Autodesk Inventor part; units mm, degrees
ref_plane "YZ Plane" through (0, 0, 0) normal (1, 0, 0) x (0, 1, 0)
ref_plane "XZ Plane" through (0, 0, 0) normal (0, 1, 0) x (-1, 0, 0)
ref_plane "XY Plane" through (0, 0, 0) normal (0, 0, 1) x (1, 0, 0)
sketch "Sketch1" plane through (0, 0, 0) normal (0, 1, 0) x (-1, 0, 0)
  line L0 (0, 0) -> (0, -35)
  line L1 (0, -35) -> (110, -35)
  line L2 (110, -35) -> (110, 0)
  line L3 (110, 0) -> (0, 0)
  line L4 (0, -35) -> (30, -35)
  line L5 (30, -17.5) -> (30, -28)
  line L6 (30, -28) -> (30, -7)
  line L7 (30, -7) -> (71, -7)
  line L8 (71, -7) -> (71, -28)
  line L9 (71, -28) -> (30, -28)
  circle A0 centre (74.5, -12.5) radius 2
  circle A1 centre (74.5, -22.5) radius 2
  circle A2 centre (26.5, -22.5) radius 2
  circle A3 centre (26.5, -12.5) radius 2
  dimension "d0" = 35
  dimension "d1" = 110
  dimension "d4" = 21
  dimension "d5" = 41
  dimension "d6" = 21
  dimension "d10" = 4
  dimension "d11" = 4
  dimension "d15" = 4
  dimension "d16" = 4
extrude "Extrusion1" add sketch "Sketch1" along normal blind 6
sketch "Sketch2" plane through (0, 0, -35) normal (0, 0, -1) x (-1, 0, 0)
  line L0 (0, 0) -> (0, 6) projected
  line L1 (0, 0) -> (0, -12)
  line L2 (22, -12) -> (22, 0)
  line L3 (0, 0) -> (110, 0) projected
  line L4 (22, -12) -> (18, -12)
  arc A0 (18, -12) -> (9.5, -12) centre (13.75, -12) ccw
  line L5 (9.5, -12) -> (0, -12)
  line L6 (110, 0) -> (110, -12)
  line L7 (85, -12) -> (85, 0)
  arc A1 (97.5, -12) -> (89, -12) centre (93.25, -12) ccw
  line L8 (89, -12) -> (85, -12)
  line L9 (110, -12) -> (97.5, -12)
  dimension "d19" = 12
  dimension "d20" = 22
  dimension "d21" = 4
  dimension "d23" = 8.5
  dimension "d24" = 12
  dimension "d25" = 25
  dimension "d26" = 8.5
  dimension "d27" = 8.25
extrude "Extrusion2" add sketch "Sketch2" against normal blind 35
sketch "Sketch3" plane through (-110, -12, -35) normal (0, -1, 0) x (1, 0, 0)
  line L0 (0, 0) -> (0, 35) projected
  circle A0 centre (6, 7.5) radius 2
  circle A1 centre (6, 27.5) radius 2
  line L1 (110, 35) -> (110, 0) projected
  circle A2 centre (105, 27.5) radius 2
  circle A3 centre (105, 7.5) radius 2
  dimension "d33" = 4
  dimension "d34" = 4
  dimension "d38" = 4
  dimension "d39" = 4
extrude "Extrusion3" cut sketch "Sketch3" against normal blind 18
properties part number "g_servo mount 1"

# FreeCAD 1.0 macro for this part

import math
import FreeCAD as App
import Part
import Sketcher
Q = App.Units.Quantity


def add_polygon(sketch, points):
    """Adds a closed chain of lines whose ends are joined by coincident constraints."""
    first, n = sketch.GeometryCount, len(points)
    for a, b in zip(points, points[1:] + points[:1]):
        sketch.addGeometry(Part.LineSegment(App.Vector(*a, 0), App.Vector(*b, 0)), False)
    for i in range(n):
        sketch.addConstraint(Sketcher.Constraint("Coincident", first + i, 2, first + (i + 1) % n, 1))

doc = App.newDocument("Part")
body = doc.addObject("PartDesign::Body", "Body")

# Sketch on XZ plane
sketch1 = body.newObject("Sketcher::SketchObject", "Sketch")
sketch1.AttachmentSupport = (doc.getObject("XZ_Plane"), [""])
sketch1.MapMode = "FlatFace"
add_polygon(sketch1, [(-110, 0), (0, 0), (0, -35), (-110, -35)])  # lines 0-3
sketch1.addGeometry(Part.Circle(App.Vector(-26.5, -22.5, 0), App.Vector(0, 0, 1), 2), False)  # 4
sketch1.addGeometry(Part.Circle(App.Vector(-74.5, -22.5, 0), App.Vector(0, 0, 1), 2), False)  # 5
sketch1.addGeometry(Part.Circle(App.Vector(-26.5, -12.5, 0), App.Vector(0, 0, 1), 2), False)  # 6
add_polygon(sketch1, [(-30, -28), (-30, -7), (-71, -7), (-71, -28)])  # lines 7-10
sketch1.addGeometry(Part.Circle(App.Vector(-74.5, -12.5, 0), App.Vector(0, 0, 1), 2), False)  # 11
sketch1.addConstraint([
    Sketcher.Constraint("Horizontal", 0),
    Sketcher.Constraint("Vertical", 1),
    Sketcher.Constraint("Horizontal", 2),
    Sketcher.Constraint("Vertical", 3),
    Sketcher.Constraint("Vertical", 7),
    Sketcher.Constraint("Horizontal", 8),
    Sketcher.Constraint("Vertical", 9),
    Sketcher.Constraint("Horizontal", 10),
    Sketcher.Constraint("Coincident", 0, 2, -1, 1),
    Sketcher.Constraint("Equal", 4, 5),
    Sketcher.Constraint("Equal", 5, 6),
    Sketcher.Constraint("Equal", 6, 11),
    Sketcher.Constraint("Horizontal", 4, 3, 5, 3),
    Sketcher.Constraint("Horizontal", 6, 3, 11, 3),
    Sketcher.Constraint("Vertical", 4, 3, 6, 3),
    Sketcher.Constraint("Vertical", 5, 3, 11, 3),
    Sketcher.Constraint("Diameter", 4, Q("4 mm")),
    Sketcher.Constraint("DistanceX", 0, 1, 0, 2, Q("110 mm")),
    Sketcher.Constraint("DistanceX", 8, 2, 8, 1, Q("41 mm")),
    Sketcher.Constraint("DistanceY", 1, 2, 1, 1, Q("35 mm")),
    Sketcher.Constraint("DistanceY", 7, 1, 7, 2, Q("21 mm")),
    Sketcher.Constraint("DistanceX", 7, 2, -1, 1, Q("30 mm")),
    Sketcher.Constraint("DistanceY", 7, 2, -1, 1, Q("7 mm")),
    Sketcher.Constraint("DistanceX", 5, 3, 4, 3, Q("48 mm")),
    Sketcher.Constraint("DistanceY", 4, 3, 6, 3, Q("10 mm")),
    Sketcher.Constraint("DistanceX", 4, 3, -1, 1, Q("26.5 mm")),
    Sketcher.Constraint("DistanceY", 4, 3, -1, 1, Q("22.5 mm")),
])
pad1 = body.newObject("PartDesign::Pad", "Pad")
pad1.Profile = sketch1
pad1.Length = 6
pad1.Reversed = True

# Sketch on XY plane
sketch2 = body.newObject("Sketcher::SketchObject", "Sketch001")
sketch2.AttachmentSupport = (doc.getObject("XY_Plane"), [""])
sketch2.MapMode = "FlatFace"
sketch2.AttachmentOffset = App.Placement(App.Vector(0, 0, -35), App.Rotation())
sketch2.addGeometry([
    Part.LineSegment(App.Vector(-22, 0, 0), App.Vector(0, 0, 0)),  # 0
    Part.LineSegment(App.Vector(0, 0, 0), App.Vector(0, -12, 0)),  # 1
    Part.LineSegment(App.Vector(0, -12, 0), App.Vector(-9.5, -12, 0)),  # 2
    Part.ArcOfCircle(Part.Circle(App.Vector(-13.75, -12, 0), App.Vector(0, 0, 1), 4.25), math.radians(0), math.radians(180)),  # 3
    Part.LineSegment(App.Vector(-18, -12, 0), App.Vector(-22, -12, 0)),  # 4
    Part.LineSegment(App.Vector(-22, -12, 0), App.Vector(-22, 0, 0)),  # 5
    Part.LineSegment(App.Vector(-110, 0, 0), App.Vector(-85, 0, 0)),  # 6
    Part.LineSegment(App.Vector(-85, 0, 0), App.Vector(-85, -12, 0)),  # 7
    Part.LineSegment(App.Vector(-85, -12, 0), App.Vector(-89, -12, 0)),  # 8
    Part.ArcOfCircle(Part.Circle(App.Vector(-93.25, -12, 0), App.Vector(0, 0, 1), 4.25), math.radians(0), math.radians(180)),  # 9
    Part.LineSegment(App.Vector(-97.5, -12, 0), App.Vector(-110, -12, 0)),  # 10
    Part.LineSegment(App.Vector(-110, -12, 0), App.Vector(-110, 0, 0)),  # 11
], False)
sketch2.addConstraint([
    Sketcher.Constraint("Coincident", 0, 2, 1, 1),
    Sketcher.Constraint("Coincident", 1, 2, 2, 1),
    Sketcher.Constraint("Coincident", 2, 2, 3, 1),
    Sketcher.Constraint("Coincident", 3, 2, 4, 1),
    Sketcher.Constraint("Coincident", 4, 2, 5, 1),
    Sketcher.Constraint("Coincident", 5, 2, 0, 1),
    Sketcher.Constraint("Coincident", 6, 2, 7, 1),
    Sketcher.Constraint("Coincident", 7, 2, 8, 1),
    Sketcher.Constraint("Coincident", 8, 2, 9, 1),
    Sketcher.Constraint("Coincident", 9, 2, 10, 1),
    Sketcher.Constraint("Coincident", 10, 2, 11, 1),
    Sketcher.Constraint("Coincident", 11, 2, 6, 1),
    Sketcher.Constraint("Horizontal", 0),
    Sketcher.Constraint("Vertical", 1),
    Sketcher.Constraint("Horizontal", 2),
    Sketcher.Constraint("Horizontal", 4),
    Sketcher.Constraint("Vertical", 5),
    Sketcher.Constraint("Horizontal", 6),
    Sketcher.Constraint("Vertical", 7),
    Sketcher.Constraint("Horizontal", 8),
    Sketcher.Constraint("Horizontal", 10),
    Sketcher.Constraint("Vertical", 11),
    Sketcher.Constraint("Coincident", 0, 2, -1, 1),
    Sketcher.Constraint("Equal", 3, 9),
    Sketcher.Constraint("PointOnObject", 6, 2, -1),
    Sketcher.Constraint("Horizontal", 3, 3, 9, 3),
    Sketcher.Constraint("Horizontal", 9, 3, 1, 2),
    Sketcher.Constraint("Horizontal", 2, 2, 3, 2),
    Sketcher.Constraint("Horizontal", 4, 2, 7, 2),
    Sketcher.Constraint("Horizontal", 8, 2, 9, 2),
    Sketcher.Constraint("Equal", 4, 8),
    Sketcher.Constraint("DistanceX", 0, 1, 0, 2, Q("22 mm")),
    Sketcher.Constraint("DistanceX", 4, 2, 4, 1, Q("4 mm")),
    Sketcher.Constraint("DistanceX", 6, 1, 6, 2, Q("25 mm")),
    Sketcher.Constraint("DistanceY", 1, 2, 1, 1, Q("12 mm")),
    Sketcher.Constraint("Radius", 3, Q("4.25 mm")),
    Sketcher.Constraint("DistanceX", 6, 2, -1, 1, Q("85 mm")),
])
pad2 = body.newObject("PartDesign::Pad", "Pad001")
pad2.Profile = sketch2
pad2.Length = 35

# Sketch on XZ plane
sketch3 = body.newObject("Sketcher::SketchObject", "Sketch002")
sketch3.AttachmentSupport = (doc.getObject("XZ_Plane"), [""])
sketch3.MapMode = "FlatFace"
sketch3.AttachmentOffset = App.Placement(App.Vector(0, 0, 12), App.Rotation())
sketch3.addGeometry([
    Part.Circle(App.Vector(-104, -27.5, 0), App.Vector(0, 0, 1), 2),
    Part.Circle(App.Vector(-104, -7.5, 0), App.Vector(0, 0, 1), 2),
    Part.Circle(App.Vector(-5, -7.5, 0), App.Vector(0, 0, 1), 2),
    Part.Circle(App.Vector(-5, -27.5, 0), App.Vector(0, 0, 1), 2),
], False)
sketch3.addConstraint([
    Sketcher.Constraint("Equal", 0, 1),
    Sketcher.Constraint("Equal", 1, 2),
    Sketcher.Constraint("Equal", 2, 3),
    Sketcher.Constraint("Horizontal", 1, 3, 2, 3),
    Sketcher.Constraint("Horizontal", 0, 3, 3, 3),
    Sketcher.Constraint("Vertical", 0, 3, 1, 3),
    Sketcher.Constraint("Vertical", 2, 3, 3, 3),
    Sketcher.Constraint("Diameter", 0, Q("4 mm")),
    Sketcher.Constraint("DistanceX", 0, 3, -1, 1, Q("104 mm")),
    Sketcher.Constraint("DistanceX", 2, 3, -1, 1, Q("5 mm")),
    Sketcher.Constraint("DistanceY", 0, 3, 1, 3, Q("20 mm")),
    Sketcher.Constraint("DistanceY", 0, 3, -1, 1, Q("27.5 mm")),
])
pocket1 = body.newObject("PartDesign::Pocket", "Pocket")
pocket1.Profile = sketch3
pocket1.Length = 18

doc.recompute()
